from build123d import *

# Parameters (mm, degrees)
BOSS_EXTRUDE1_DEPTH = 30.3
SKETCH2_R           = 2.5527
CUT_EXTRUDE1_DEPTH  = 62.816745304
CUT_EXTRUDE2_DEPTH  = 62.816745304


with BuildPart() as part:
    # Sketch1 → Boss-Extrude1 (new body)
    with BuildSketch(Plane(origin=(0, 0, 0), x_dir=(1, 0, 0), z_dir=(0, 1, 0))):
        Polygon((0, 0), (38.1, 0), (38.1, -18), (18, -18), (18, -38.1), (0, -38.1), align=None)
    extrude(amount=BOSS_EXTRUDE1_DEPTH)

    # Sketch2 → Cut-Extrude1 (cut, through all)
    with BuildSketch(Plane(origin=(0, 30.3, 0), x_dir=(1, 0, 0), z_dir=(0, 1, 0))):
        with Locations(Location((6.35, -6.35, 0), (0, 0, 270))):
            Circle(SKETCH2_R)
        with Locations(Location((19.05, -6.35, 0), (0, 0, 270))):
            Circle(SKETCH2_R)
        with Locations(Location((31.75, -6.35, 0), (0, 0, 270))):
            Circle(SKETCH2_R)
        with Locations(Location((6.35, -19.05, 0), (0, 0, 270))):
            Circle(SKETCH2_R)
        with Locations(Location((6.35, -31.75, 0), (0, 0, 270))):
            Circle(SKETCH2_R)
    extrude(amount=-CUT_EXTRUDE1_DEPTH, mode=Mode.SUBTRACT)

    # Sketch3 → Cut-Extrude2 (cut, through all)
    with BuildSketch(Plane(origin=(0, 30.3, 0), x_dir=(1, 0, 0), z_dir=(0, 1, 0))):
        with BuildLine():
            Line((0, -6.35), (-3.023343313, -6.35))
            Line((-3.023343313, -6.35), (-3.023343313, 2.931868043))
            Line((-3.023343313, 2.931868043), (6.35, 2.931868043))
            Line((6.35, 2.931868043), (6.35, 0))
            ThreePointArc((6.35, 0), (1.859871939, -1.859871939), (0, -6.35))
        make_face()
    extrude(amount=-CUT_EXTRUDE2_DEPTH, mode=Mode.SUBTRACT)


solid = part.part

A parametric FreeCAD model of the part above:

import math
import FreeCAD as App
import Part
import Sketcher
from FreeCAD import Vector
Q = App.Units.Quantity

doc = App.newDocument("Part")
params = doc.addObject("Spreadsheet::Sheet", "Params")
for row, (alias, value) in enumerate([
    ("sketch1_width", "18 mm"),
    ("sketch1_width2", "38.1 mm"),
    ("pad1_length", "30.3 mm"),
    ("sketch3_radius", "6.35 mm"),
], start=1):
    params.set(f"A{row}", alias)
    params.set(f"B{row}", "=" + value)
    params.setAlias(f"B{row}", alias)

body = doc.addObject("PartDesign::Body", "Body")

# Sketch on XZ plane
sketch1 = body.newObject("Sketcher::SketchObject", "Sketch")
sketch1.AttachmentSupport = (doc.getObject("XZ_Plane"), [""])
sketch1.MapMode = "FlatFace"
sketch1.addGeometry([
    Part.LineSegment(Vector(38, 0, 0), Vector(0, 0, 0)),  # 0
    Part.LineSegment(Vector(0, 0, 0), Vector(0, 38, 0)),  # 1
    Part.LineSegment(Vector(0, 38, 0), Vector(18, 38, 0)),  # 2
    Part.LineSegment(Vector(18, 38, 0), Vector(18, 18, 0)),  # 3
    Part.LineSegment(Vector(18, 18, 0), Vector(38, 18, 0)),  # 4
    Part.LineSegment(Vector(38, 18, 0), Vector(38, 0, 0)),  # 5
], False)
sketch1.addConstraint([
    Sketcher.Constraint("Coincident", 0, 2, 1, 1),
    Sketcher.Constraint("Coincident", 1, 2, 2, 1),
    Sketcher.Constraint("Coincident", 2, 2, 3, 1),
    Sketcher.Constraint("Coincident", 3, 2, 4, 1),
    Sketcher.Constraint("Coincident", 4, 2, 5, 1),
    Sketcher.Constraint("Coincident", 5, 2, 0, 1),
    Sketcher.Constraint("Horizontal", 0),
    Sketcher.Constraint("Vertical", 1),
    Sketcher.Constraint("Horizontal", 2),
    Sketcher.Constraint("Vertical", 3),
    Sketcher.Constraint("Horizontal", 4),
    Sketcher.Constraint("Vertical", 5),
    Sketcher.Constraint("Coincident", 0, 2, -1, 1),
    Sketcher.Constraint("Equal", 0, 1),
    Sketcher.Constraint("Equal", 4, 3),
    Sketcher.Constraint("DistanceX", 2, 1, 2, 2, Q("18 mm")),
    Sketcher.Constraint("DistanceX", 0, 2, 0, 1, Q("38.1 mm")),
])
sketch1.setExpression("Constraints[15]", "Params.sketch1_width")
sketch1.setExpression("Constraints[16]", "Params.sketch1_width2")
pad1 = body.newObject("PartDesign::Pad", "Pad")
pad1.Profile = sketch1
pad1.setExpression("Length", "Params.pad1_length")
pad1.Reversed = True

# Sketch on XZ plane
sketch2 = body.newObject("Sketcher::SketchObject", "Sketch001")
sketch2.AttachmentSupport = (doc.getObject("XZ_Plane"), [""])
sketch2.MapMode = "FlatFace"
sketch2.AttachmentOffset = App.Placement(Vector(0, 0, -30.3), App.Rotation())
sketch2.addGeometry([
    Part.Circle(Vector(6.3, 6.3, 0), Vector(0, 0, 1), 2.6),  # 0
    Part.Circle(Vector(19.1, 6.3, 0), Vector(0, 0, 1), 2.6),  # 1
    Part.Circle(Vector(31.8, 6.3, 0), Vector(0, 0, 1), 2.6),  # 2
    Part.Circle(Vector(6.3, 19.1, 0), Vector(0, 0, 1), 2.6),  # 3
    Part.Circle(Vector(6.3, 31.8, 0), Vector(0, 0, 1), 2.6),  # 4
], False)
sketch2.addConstraint([
    Sketcher.Constraint("Equal", 0, 1),
    Sketcher.Constraint("Equal", 1, 2),
    Sketcher.Constraint("Equal", 2, 3),
    Sketcher.Constraint("Equal", 3, 4),
    Sketcher.Constraint("Horizontal", 0, 3, 1, 3),
    Sketcher.Constraint("Horizontal", 1, 3, 2, 3),
    Sketcher.Constraint("Vertical", 0, 3, 3, 3),
    Sketcher.Constraint("Vertical", 3, 3, 4, 3),
    Sketcher.Constraint("Diameter", 0, Q("5.1054 mm")),
    Sketcher.Constraint("DistanceX", 0, 3, 1, 3, Q("12.7 mm")),
    Sketcher.Constraint("DistanceX", 1, 3, 2, 3, Q("12.7 mm")),
    Sketcher.Constraint("DistanceY", 0, 3, 3, 3, Q("12.7 mm")),
    Sketcher.Constraint("DistanceY", 3, 3, 4, 3, Q("12.7 mm")),
    Sketcher.Constraint("DistanceX", -1, 1, 0, 3, Q("6.35 mm")),
    Sketcher.Constraint("DistanceY", -1, 1, 0, 3, Q("6.35 mm")),
])
pocket1 = body.newObject("PartDesign::Pocket", "Pocket")
pocket1.Profile = sketch2
pocket1.Type = "ThroughAll"
pocket1.Reversed = True

# Sketch on XZ plane
sketch3 = body.newObject("Sketcher::SketchObject", "Sketch002")
sketch3.AttachmentSupport = (doc.getObject("XZ_Plane"), [""])
sketch3.MapMode = "FlatFace"
sketch3.AttachmentOffset = App.Placement(Vector(0, 0, -30.3), App.Rotation())
sketch3.addGeometry([
    Part.LineSegment(Vector(-3, 6.3, 0), Vector(0, 6.3, 0)),  # 0
    Part.ArcOfCircle(Part.Circle(Vector(6.3, 6.3, 0), Vector(0, 0, 1), 6.3), math.radians(180), math.radians(270)),  # 1
    Part.LineSegment(Vector(6.3, 0, 0), Vector(6.3, -2.9, 0)),  # 2
    Part.LineSegment(Vector(6.3, -2.9, 0), Vector(-3, -2.9, 0)),  # 3
    Part.LineSegment(Vector(-3, -2.9, 0), Vector(-3, 6.3, 0)),  # 4
], False)
sketch3.addConstraint([
    Sketcher.Constraint("Coincident", 0, 2, 1, 1),
    Sketcher.Constraint("Coincident", 1, 2, 2, 1),
    Sketcher.Constraint("Coincident", 2, 2, 3, 1),
    Sketcher.Constraint("Coincident", 3, 2, 4, 1),
    Sketcher.Constraint("Coincident", 4, 2, 0, 1),
    Sketcher.Constraint("Horizontal", 0),
    Sketcher.Constraint("Vertical", 2),
    Sketcher.Constraint("Horizontal", 3),
    Sketcher.Constraint("Vertical", 4),
    Sketcher.Constraint("PointOnObject", 0, 2, -2),
    Sketcher.Constraint("PointOnObject", 1, 2, -1),
    Sketcher.Constraint("Horizontal", 1, 3, 0, 2),
    Sketcher.Constraint("Radius", 1, Q("6.35 mm")),
    Sketcher.Constraint("DistanceX", -1, 1, 1, 2, Q("6.35 mm")),
    Sketcher.Constraint("DistanceY", 2, 2, 2, 1, Q("2.931868 mm")),
    Sketcher.Constraint("DistanceX", 0, 1, 0, 2, Q("3.023343 mm")),
])
sketch3.setExpression("Constraints[12]", "Params.sketch3_radius")
pocket2 = body.newObject("PartDesign::Pocket", "Pocket001")
pocket2.Profile = sketch3
pocket2.Type = "ThroughAll"
pocket2.Reversed = True

doc.recompute()
